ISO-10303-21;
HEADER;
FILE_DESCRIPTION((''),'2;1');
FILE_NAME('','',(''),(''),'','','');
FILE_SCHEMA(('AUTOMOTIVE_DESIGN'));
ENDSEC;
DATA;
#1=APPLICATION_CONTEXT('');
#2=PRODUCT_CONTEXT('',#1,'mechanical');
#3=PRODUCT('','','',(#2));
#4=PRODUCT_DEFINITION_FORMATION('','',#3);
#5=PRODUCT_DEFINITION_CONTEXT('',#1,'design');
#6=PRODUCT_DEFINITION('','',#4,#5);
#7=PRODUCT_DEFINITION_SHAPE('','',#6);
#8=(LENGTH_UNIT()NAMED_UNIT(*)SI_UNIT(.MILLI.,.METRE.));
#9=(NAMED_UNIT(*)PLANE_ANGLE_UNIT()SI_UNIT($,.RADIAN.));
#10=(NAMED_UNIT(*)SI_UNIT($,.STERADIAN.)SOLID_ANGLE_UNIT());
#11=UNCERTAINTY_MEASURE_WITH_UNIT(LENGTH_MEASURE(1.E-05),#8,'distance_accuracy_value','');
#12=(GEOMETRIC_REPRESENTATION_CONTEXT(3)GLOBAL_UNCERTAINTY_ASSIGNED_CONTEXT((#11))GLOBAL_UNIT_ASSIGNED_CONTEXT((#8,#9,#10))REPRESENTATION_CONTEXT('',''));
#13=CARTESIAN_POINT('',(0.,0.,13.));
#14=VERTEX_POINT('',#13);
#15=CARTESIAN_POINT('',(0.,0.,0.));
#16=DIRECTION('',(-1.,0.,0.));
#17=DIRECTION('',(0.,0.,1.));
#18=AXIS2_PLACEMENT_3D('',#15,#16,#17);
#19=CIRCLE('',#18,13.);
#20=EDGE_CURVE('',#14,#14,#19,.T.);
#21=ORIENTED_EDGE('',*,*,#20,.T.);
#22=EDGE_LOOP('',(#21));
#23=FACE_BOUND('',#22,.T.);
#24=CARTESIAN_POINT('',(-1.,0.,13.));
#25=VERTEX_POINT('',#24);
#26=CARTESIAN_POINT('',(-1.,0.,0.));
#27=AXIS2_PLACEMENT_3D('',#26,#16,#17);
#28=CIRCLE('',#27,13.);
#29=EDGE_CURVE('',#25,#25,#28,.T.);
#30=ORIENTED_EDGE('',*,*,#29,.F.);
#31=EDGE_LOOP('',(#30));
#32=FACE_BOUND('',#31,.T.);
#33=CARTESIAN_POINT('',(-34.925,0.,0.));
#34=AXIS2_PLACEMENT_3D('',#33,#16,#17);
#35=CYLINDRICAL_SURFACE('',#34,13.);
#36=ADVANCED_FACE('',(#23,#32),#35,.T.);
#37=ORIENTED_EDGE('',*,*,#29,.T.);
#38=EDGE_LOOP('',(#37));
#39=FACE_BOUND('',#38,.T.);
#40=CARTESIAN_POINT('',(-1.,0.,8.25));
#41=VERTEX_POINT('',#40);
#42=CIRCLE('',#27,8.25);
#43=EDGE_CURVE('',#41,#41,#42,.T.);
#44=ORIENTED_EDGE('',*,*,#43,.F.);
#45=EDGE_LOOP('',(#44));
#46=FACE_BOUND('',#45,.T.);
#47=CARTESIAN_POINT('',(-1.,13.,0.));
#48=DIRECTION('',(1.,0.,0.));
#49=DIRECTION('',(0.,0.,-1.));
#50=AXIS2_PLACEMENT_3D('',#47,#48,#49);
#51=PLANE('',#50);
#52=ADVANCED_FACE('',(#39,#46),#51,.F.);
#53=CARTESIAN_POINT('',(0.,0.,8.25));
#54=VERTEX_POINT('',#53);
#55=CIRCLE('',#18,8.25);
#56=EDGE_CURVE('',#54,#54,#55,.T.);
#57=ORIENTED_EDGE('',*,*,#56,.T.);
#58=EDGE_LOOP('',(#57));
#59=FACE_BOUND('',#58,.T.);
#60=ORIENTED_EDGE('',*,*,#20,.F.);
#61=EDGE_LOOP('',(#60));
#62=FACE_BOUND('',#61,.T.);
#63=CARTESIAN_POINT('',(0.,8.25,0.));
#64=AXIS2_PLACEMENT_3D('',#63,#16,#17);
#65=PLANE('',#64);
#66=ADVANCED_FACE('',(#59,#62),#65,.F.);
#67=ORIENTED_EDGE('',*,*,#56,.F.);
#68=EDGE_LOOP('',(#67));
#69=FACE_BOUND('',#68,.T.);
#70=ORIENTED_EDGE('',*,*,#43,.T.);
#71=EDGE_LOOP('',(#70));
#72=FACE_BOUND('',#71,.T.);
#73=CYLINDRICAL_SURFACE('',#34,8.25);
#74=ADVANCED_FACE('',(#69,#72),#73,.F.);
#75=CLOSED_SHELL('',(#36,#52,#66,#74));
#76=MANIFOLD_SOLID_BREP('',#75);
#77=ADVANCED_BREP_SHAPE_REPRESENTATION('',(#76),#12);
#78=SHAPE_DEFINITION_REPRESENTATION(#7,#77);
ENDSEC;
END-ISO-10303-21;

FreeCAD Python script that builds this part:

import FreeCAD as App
import Part
import Sketcher

V = App.Vector
Q = App.Units.Quantity

doc = App.newDocument("Part")
body = doc.addObject("PartDesign::Body", "Body")

sketch1 = body.newObject("Sketcher::SketchObject", "Sketch")
sketch1.AttachmentSupport = (doc.getObject("XY_Plane"), [""])
sketch1.MapMode = "FlatFace"
sketch1.addGeometry([
    Part.LineSegment(V(-1, 13, 0), V(-1, 8.2, 0)),
    Part.LineSegment(V(-1, 8.2, 0), V(0, 8.2, 0)),
    Part.LineSegment(V(0, 8.2, 0), V(0, 13, 0)),
    Part.LineSegment(V(0, 13, 0), V(-1, 13, 0)),
], False)
sketch1.addConstraint([
    Sketcher.Constraint("Coincident", 0, 2, 1, 1),
    Sketcher.Constraint("Coincident", 1, 2, 2, 1),
    Sketcher.Constraint("Coincident", 2, 2, 3, 1),
    Sketcher.Constraint("Coincident", 3, 2, 0, 1),
    Sketcher.Constraint("Vertical", 0),
    Sketcher.Constraint("Horizontal", 1),
    Sketcher.Constraint("Vertical", 2),
    Sketcher.Constraint("Horizontal", 3),
    Sketcher.Constraint("PointOnObject", 1, 2, -2),
    Sketcher.Constraint("DistanceX", 1, 1, 1, 2, Q("1 mm")),
    Sketcher.Constraint("DistanceY", -1, 1, 2, 2, Q("13 mm")),
    Sketcher.Constraint("DistanceY", 0, 2, 0, 1, Q("4.75 mm")),
])
revolution = body.newObject("PartDesign::Revolution", "Revolution")
revolution.Profile = sketch1
revolution.ReferenceAxis = (sketch1, ["H_Axis"])
revolution.Angle = 360

doc.recompute()
